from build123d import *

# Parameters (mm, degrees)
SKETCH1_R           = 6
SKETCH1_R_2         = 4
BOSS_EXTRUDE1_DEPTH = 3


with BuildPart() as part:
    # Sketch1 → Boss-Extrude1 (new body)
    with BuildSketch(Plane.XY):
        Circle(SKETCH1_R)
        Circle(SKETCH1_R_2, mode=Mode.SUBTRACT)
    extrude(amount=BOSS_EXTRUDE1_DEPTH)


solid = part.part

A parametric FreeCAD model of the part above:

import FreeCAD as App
import Part
import Sketcher

doc = App.newDocument("Part")
body = doc.addObject("PartDesign::Body", "Body")

# Sketch on XY plane
sketch1 = body.newObject("Sketcher::SketchObject", "Sketch")
sketch1.AttachmentSupport = (doc.getObject("XY_Plane"), [""])
sketch1.MapMode = "FlatFace"
sketch1.addGeometry([
    Part.Circle(App.Vector(0, 0, 0), App.Vector(0, 0, 1), 6),
    Part.Circle(App.Vector(0, 0, 0), App.Vector(0, 0, 1), 4),
], False)
sketch1.addConstraint([
    Sketcher.Constraint("Coincident", 0, 3, -1, 1),
    Sketcher.Constraint("Coincident", 1, 3, -1, 1),
    Sketcher.Constraint("Diameter", 0, 12.0),
    Sketcher.Constraint("Diameter", 1, 8.0),
])
pad1 = body.newObject("PartDesign::Pad", "Pad")
pad1.Profile = sketch1
pad1.Length = 3

doc.recompute()
